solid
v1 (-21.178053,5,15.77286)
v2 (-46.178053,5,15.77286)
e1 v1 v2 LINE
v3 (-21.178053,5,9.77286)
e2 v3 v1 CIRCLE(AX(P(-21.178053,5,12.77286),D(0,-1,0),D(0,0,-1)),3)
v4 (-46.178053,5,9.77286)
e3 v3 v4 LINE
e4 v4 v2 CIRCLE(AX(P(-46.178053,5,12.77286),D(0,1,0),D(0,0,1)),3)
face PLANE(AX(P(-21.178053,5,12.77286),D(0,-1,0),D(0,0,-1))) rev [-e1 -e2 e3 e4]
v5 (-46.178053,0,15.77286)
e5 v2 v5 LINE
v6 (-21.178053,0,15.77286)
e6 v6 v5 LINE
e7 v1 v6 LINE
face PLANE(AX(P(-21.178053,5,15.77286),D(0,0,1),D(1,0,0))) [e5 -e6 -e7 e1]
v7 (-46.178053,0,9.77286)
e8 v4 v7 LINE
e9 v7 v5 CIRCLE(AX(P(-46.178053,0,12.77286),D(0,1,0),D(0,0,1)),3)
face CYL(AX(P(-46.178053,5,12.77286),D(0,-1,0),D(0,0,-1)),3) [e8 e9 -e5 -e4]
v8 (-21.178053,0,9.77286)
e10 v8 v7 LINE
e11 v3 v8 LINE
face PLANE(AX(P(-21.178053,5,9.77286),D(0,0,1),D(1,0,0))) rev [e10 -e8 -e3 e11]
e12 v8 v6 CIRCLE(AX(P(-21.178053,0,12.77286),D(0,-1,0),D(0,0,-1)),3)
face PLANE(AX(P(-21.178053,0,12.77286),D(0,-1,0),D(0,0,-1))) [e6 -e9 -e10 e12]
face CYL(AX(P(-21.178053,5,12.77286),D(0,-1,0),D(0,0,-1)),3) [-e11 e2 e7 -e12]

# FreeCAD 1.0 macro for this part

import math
import FreeCAD as App
import Part
import Sketcher

V = App.Vector

doc = App.newDocument("Part")
body = doc.addObject("PartDesign::Body", "Body")

# Sketch on XZ plane
sketch1 = body.newObject("Sketcher::SketchObject", "Sketch")
sketch1.AttachmentSupport = (doc.getObject("XZ_Plane"), [""])
sketch1.MapMode = "FlatFace"
sketch1.addGeometry([
    Part.LineSegment(V(-46.2, 15.8, 0), V(-21.2, 15.8, 0)),
    Part.ArcOfCircle(Part.Circle(V(-21.2, 12.8, 0), V(0, 0, 1), 3), math.radians(-90), math.radians(90)),
    Part.LineSegment(V(-21.2, 9.8, 0), V(-46.2, 9.8, 0)),
    Part.ArcOfCircle(Part.Circle(V(-46.2, 12.8, 0), V(0, 0, 1), 3), math.radians(90), math.radians(270)),
], False)
sketch1.addConstraint([
    Sketcher.Constraint("Tangent", 0, 2, 1, 2),
    Sketcher.Constraint("Tangent", 1, 1, 2, 1),
    Sketcher.Constraint("Tangent", 2, 2, 3, 2),
    Sketcher.Constraint("Tangent", 3, 1, 0, 1),
    Sketcher.Constraint("Horizontal", 0),
    Sketcher.Constraint("Horizontal", 2),
    Sketcher.Constraint("Radius", 1, 3.0),
    Sketcher.Constraint("DistanceX", 0, 1, 0, 2, 25.0),
    Sketcher.Constraint("DistanceY", -1, 1, 1, 3, 12.77286),
    Sketcher.Constraint("DistanceX", 1, 3, -1, 1, 21.178053),
])
pad1 = body.newObject("PartDesign::Pad", "Pad")
pad1.Profile = sketch1
pad1.Length = 5
pad1.Reversed = True

doc.recompute()
